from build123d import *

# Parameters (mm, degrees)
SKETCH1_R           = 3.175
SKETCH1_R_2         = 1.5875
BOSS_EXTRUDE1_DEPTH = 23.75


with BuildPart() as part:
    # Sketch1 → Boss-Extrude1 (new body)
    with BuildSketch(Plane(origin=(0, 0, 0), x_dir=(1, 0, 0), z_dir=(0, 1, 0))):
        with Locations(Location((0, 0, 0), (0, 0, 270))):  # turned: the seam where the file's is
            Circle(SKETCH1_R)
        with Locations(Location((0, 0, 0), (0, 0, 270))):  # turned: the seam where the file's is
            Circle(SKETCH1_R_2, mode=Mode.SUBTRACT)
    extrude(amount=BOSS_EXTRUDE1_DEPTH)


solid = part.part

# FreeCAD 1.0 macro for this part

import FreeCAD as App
import Part
import Sketcher
Q = App.Units.Quantity

doc = App.newDocument("Part")
body = doc.addObject("PartDesign::Body", "Body")

# Sketch on XZ plane
sketch1 = body.newObject("Sketcher::SketchObject", "Sketch")
sketch1.AttachmentSupport = (doc.getObject("XZ_Plane"), [""])
sketch1.MapMode = "FlatFace"
sketch1.addGeometry(Part.Circle(App.Vector(0, 0, 0), App.Vector(0, 0, 1), 3.2), False)
sketch1.addGeometry(Part.Circle(App.Vector(0, 0, 0), App.Vector(0, 0, 1), 1.6), False)
sketch1.addConstraint(Sketcher.Constraint("Coincident", 0, 3, -1, 1))
sketch1.addConstraint(Sketcher.Constraint("Coincident", 1, 3, -1, 1))
sketch1.addConstraint(Sketcher.Constraint("Diameter", 0, Q("0.25 in")))
sketch1.addConstraint(Sketcher.Constraint("Diameter", 1, Q("0.125 in")))
pad1 = body.newObject("PartDesign::Pad", "Pad")
pad1.Profile = sketch1
pad1.Length = 23.75
pad1.Reversed = True

doc.recompute()
